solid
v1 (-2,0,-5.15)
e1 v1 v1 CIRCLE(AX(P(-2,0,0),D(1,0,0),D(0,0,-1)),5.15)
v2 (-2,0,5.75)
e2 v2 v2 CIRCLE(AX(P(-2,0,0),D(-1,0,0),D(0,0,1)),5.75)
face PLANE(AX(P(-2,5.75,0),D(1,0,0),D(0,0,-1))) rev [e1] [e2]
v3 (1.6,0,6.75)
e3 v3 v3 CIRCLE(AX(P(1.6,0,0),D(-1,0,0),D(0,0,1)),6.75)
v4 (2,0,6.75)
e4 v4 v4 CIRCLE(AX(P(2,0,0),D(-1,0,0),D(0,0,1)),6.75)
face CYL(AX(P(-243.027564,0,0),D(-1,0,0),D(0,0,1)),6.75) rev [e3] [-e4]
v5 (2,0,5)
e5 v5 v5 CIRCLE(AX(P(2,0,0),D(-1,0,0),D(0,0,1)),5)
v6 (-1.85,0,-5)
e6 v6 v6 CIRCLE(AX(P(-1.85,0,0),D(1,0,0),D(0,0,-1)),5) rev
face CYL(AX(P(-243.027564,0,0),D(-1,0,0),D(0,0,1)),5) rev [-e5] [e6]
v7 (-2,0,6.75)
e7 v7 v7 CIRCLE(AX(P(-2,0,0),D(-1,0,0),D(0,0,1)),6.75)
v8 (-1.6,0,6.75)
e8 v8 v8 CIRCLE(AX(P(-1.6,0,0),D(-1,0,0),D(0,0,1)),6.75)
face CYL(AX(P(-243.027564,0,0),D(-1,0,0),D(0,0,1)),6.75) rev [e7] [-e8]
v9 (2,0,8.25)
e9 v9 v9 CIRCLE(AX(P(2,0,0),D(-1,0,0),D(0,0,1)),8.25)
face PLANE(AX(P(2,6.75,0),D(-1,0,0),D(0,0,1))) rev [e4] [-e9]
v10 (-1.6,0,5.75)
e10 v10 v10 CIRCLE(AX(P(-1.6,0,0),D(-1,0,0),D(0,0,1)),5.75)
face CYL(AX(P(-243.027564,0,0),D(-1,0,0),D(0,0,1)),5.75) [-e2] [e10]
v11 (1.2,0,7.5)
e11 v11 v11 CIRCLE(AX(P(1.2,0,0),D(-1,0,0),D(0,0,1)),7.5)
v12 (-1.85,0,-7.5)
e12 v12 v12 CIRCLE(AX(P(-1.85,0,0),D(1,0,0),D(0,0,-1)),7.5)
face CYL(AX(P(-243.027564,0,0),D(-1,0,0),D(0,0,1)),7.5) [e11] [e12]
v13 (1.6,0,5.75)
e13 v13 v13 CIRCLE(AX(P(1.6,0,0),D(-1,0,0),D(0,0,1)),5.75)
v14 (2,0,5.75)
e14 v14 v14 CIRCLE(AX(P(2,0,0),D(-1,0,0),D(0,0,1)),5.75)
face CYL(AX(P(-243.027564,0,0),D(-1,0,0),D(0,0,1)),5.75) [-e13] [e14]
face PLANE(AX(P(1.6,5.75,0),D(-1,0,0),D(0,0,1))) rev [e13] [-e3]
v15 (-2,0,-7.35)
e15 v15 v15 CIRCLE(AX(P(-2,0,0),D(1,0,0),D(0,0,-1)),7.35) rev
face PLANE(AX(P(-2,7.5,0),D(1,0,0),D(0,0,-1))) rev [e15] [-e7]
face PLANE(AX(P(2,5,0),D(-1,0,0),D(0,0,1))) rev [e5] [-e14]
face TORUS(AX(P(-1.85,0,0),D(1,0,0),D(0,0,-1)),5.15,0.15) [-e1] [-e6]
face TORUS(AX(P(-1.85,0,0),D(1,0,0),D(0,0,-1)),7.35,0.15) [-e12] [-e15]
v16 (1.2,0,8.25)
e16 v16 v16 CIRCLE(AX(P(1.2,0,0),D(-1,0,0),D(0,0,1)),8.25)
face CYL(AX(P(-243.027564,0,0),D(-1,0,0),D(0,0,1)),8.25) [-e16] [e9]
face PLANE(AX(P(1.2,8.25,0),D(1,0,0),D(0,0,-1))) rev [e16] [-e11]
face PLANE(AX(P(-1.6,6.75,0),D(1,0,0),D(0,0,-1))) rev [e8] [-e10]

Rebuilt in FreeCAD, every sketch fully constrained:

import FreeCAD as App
import Part
import Sketcher

V = App.Vector
Q = App.Units.Quantity


def edges_at(feature, points):
    """Names of the edges that pass closest to the given points."""
    edges = feature.Shape.Edges
    near = lambda p: min(range(len(edges)), key=lambda i: edges[i].distToShape(Part.Vertex(*p))[0])
    return sorted({f"Edge{near(p) + 1}" for p in points})

doc = App.newDocument("Part")
body = doc.addObject("PartDesign::Body", "Body")

sketch1 = doc.addObject("Sketcher::SketchObject", "Sketch")
body.addObject(sketch1)
sketch1.AttachmentSupport = (doc.XY_Plane, [""])
sketch1.MapMode = "FlatFace"
sketch1.addGeometry([
    Part.LineSegment(V(2, 8.25, 0), V(1.2, 8.25, 0)),
    Part.LineSegment(V(1.2, 8.25, 0), V(1.2, 7.5, 0)),
    Part.LineSegment(V(1.2, 7.5, 0), V(-2, 7.5, 0)),
    Part.LineSegment(V(-2, 7.5, 0), V(-2, 6.75, 0)),
    Part.LineSegment(V(-2, 6.75, 0), V(-1.6, 6.75, 0)),
    Part.LineSegment(V(-1.6, 6.75, 0), V(-1.6, 5.75, 0)),
    Part.LineSegment(V(-1.6, 5.75, 0), V(-2, 5.75, 0)),
    Part.LineSegment(V(-2, 5.75, 0), V(-2, 5, 0)),
    Part.LineSegment(V(-2, 5, 0), V(2, 5, 0)),
    Part.LineSegment(V(2, 5, 0), V(2, 5.75, 0)),
    Part.LineSegment(V(2, 5.75, 0), V(1.6, 5.75, 0)),
    Part.LineSegment(V(1.6, 5.75, 0), V(1.6, 6.75, 0)),
    Part.LineSegment(V(1.6, 6.75, 0), V(2, 6.75, 0)),
    Part.LineSegment(V(2, 6.75, 0), V(2, 8.25, 0)),
], False)
sketch1.addConstraint([
    Sketcher.Constraint("Coincident", 0, 2, 1, 1),
    Sketcher.Constraint("Coincident", 1, 2, 2, 1),
    Sketcher.Constraint("Coincident", 2, 2, 3, 1),
    Sketcher.Constraint("Coincident", 3, 2, 4, 1),
    Sketcher.Constraint("Coincident", 4, 2, 5, 1),
    Sketcher.Constraint("Coincident", 5, 2, 6, 1),
    Sketcher.Constraint("Coincident", 6, 2, 7, 1),
    Sketcher.Constraint("Coincident", 7, 2, 8, 1),
    Sketcher.Constraint("Coincident", 8, 2, 9, 1),
    Sketcher.Constraint("Coincident", 9, 2, 10, 1),
    Sketcher.Constraint("Coincident", 10, 2, 11, 1),
    Sketcher.Constraint("Coincident", 11, 2, 12, 1),
    Sketcher.Constraint("Coincident", 12, 2, 13, 1),
    Sketcher.Constraint("Coincident", 13, 2, 0, 1),
    Sketcher.Constraint("Horizontal", 0),
    Sketcher.Constraint("Vertical", 1),
    Sketcher.Constraint("Horizontal", 2),
    Sketcher.Constraint("Vertical", 3),
    Sketcher.Constraint("Horizontal", 4),
    Sketcher.Constraint("Vertical", 5),
    Sketcher.Constraint("Horizontal", 6),
    Sketcher.Constraint("Vertical", 7),
    Sketcher.Constraint("Horizontal", 8),
    Sketcher.Constraint("Vertical", 9),
    Sketcher.Constraint("Horizontal", 10),
    Sketcher.Constraint("Vertical", 11),
    Sketcher.Constraint("Horizontal", 12),
    Sketcher.Constraint("Vertical", 13),
    Sketcher.Constraint("Symmetric", 6, 2, 9, 2, -2),
    Sketcher.Constraint("Symmetric", 4, 2, 11, 2, -2),
    Sketcher.Constraint("Vertical", 3, 2, 6, 2),
    Sketcher.Constraint("Vertical", 9, 2, 12, 2),
    Sketcher.Constraint("Equal", 1, 3),
    Sketcher.Constraint("Equal", 3, 7),
    Sketcher.Constraint("DistanceX", 8, 1, 8, 2, Q("4 mm")),
    Sketcher.Constraint("DistanceY", 5, 2, 5, 1, Q("1 mm")),
    Sketcher.Constraint("DistanceX", 0, 2, 0, 1, Q("0.8 mm")),
    Sketcher.Constraint("DistanceX", 4, 1, 4, 2, Q("0.4 mm")),
    Sketcher.Constraint("DistanceY", 13, 1, 13, 2, Q("1.5 mm")),
    Sketcher.Constraint("DistanceY", -1, 1, 7, 2, Q("5 mm")),
])
revolution = doc.addObject("PartDesign::Revolution", "Revolution")
body.addObject(revolution)
revolution.Profile = sketch1
revolution.ReferenceAxis = (sketch1, ["H_Axis"])
revolution.Angle = 360
doc.recompute()

fillet = doc.addObject("PartDesign::Fillet", "Fillet")
body.addObject(fillet)
fillet.Base = (revolution, edges_at(revolution, [(-2, 0, -5), (-2, 0, -7.5)]))
fillet.Radius = 0.15

doc.recompute()
